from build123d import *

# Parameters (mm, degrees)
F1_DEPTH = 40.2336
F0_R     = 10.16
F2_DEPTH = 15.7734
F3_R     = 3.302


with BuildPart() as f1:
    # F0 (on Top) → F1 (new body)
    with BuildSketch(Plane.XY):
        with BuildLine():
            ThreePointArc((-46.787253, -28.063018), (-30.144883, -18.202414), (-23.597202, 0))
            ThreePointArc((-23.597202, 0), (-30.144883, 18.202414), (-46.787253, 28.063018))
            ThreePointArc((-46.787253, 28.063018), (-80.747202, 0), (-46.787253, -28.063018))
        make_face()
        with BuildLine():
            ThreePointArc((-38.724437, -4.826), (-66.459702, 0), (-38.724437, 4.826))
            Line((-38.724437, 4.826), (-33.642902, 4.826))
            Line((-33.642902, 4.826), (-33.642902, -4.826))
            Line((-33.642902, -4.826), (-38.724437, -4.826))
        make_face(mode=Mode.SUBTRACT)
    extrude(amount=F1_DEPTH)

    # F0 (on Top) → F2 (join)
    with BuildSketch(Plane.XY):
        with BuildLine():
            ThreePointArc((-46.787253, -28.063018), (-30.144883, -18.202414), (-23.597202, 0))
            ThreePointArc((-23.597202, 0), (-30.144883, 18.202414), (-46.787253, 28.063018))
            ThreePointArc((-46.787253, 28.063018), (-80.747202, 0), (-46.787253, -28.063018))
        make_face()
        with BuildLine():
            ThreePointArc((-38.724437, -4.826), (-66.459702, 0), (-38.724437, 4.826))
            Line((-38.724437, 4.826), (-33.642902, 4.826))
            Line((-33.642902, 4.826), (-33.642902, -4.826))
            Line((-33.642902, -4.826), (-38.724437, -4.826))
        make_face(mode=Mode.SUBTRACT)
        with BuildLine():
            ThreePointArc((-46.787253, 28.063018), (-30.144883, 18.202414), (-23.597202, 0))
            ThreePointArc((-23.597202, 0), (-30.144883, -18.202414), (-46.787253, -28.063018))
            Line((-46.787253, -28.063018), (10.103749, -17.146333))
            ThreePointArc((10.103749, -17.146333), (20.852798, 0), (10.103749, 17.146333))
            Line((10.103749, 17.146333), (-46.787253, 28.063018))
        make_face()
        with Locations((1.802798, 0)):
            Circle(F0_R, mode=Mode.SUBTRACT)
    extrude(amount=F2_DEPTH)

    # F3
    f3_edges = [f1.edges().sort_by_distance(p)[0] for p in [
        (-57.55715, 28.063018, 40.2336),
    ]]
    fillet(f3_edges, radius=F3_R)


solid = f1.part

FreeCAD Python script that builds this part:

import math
import FreeCAD as App
import Part
import Sketcher
from FreeCAD import Vector
Q = App.Units.Quantity


def edges_at(feature, points):
    """Names of the edges that pass closest to the given points."""
    edges = feature.Shape.Edges
    near = lambda p: min(range(len(edges)), key=lambda i: edges[i].distToShape(Part.Vertex(*p))[0])
    return sorted({f"Edge{near(p) + 1}" for p in points})

doc = App.newDocument("Part")
body = doc.addObject("PartDesign::Body", "Body")

# Sketch on XY plane
sketch1 = body.newObject("Sketcher::SketchObject", "Sketch")
sketch1.AttachmentSupport = (doc.getObject("XY_Plane"), [""])
sketch1.MapMode = "FlatFace"
sketch1.addGeometry([
    Part.ArcOfCircle(Part.Circle(Vector(-52.172201, -0.000001, 0), Vector(0, 0, 1), 28.574999), math.radians(-79.137679), math.radians(0.000002)),  # 0
    Part.ArcOfCircle(Part.Circle(Vector(-52.172201, 0.000001, 0), Vector(0, 0, 1), 28.574999), math.radians(-0.000002), math.radians(79.137679)),  # 1
    Part.ArcOfCircle(Part.Circle(Vector(-52.172202, 0, 0), Vector(0, 0, 1), 28.575), math.radians(79.137679), math.radians(280.862321)),  # 2
    Part.LineSegment(Vector(-33.642902, -4.826, 0), Vector(-38.724437, -4.826, 0)),  # 3
    Part.ArcOfCircle(Part.Circle(Vector(-52.172202, 0, 0), Vector(0, 0, 1), 14.2875), math.radians(19.741542), math.radians(340.258458)),  # 4
    Part.LineSegment(Vector(-38.724437, 4.826, 0), Vector(-33.642902, 4.826, 0)),  # 5
    Part.LineSegment(Vector(-33.642902, 4.826, 0), Vector(-33.642902, -4.826, 0)),  # 6
], False)
sketch1.addConstraint([
    Sketcher.Constraint("Tangent", 0, 2, 1, 1),
    Sketcher.Constraint("Tangent", 1, 2, 2, 1),
    Sketcher.Constraint("Tangent", 2, 2, 0, 1),
    Sketcher.Constraint("Coincident", 3, 2, 4, 2),
    Sketcher.Constraint("Coincident", 4, 1, 5, 1),
    Sketcher.Constraint("Coincident", 5, 2, 6, 1),
    Sketcher.Constraint("Coincident", 6, 2, 3, 1),
    Sketcher.Constraint("Horizontal", 3),
    Sketcher.Constraint("Horizontal", 5),
    Sketcher.Constraint("Vertical", 6),
    Sketcher.Constraint("Coincident", 4, 3, 0, 3),
    Sketcher.Constraint("Symmetric", 1, 2, 2, 2, -1),
    Sketcher.Constraint("PointOnObject", 0, 2, -1),
    Sketcher.Constraint("Vertical", 3, 2, 4, 1),
    Sketcher.Constraint("Radius", 0, Q("1.125 in")),
    Sketcher.Constraint("Radius", 4, Q("0.5625 in")),
    Sketcher.Constraint("DistanceY", 6, 2, 6, 1, Q("0.38 in")),
    Sketcher.Constraint("DistanceX", 5, 2, 0, 2, Q("0.3955 in")),
    Sketcher.Constraint("DistanceX", 0, 3, -1, 1, 52.172201),
    Sketcher.Constraint("DistanceY", 2, 2, -1, 1, 28.063018),
])
pad1 = body.newObject("PartDesign::Pad", "Pad")
pad1.Profile = sketch1
pad1.Length = Q("1.584 in")

# Sketch on XY plane
sketch2 = body.newObject("Sketcher::SketchObject", "Sketch001")
sketch2.AttachmentSupport = (doc.getObject("XY_Plane"), [""])
sketch2.MapMode = "FlatFace"
sketch2.addGeometry([
    Part.ArcOfCircle(Part.Circle(Vector(-52.172202, 0, 0), Vector(0, 0, 1), 28.575), math.radians(79.137679), math.radians(280.862321)),  # 0
    Part.LineSegment(Vector(-46.787253, -28.063018, 0), Vector(10.103749, -17.146333, 0)),  # 1
    Part.ArcOfCircle(Part.Circle(Vector(1.802797, 0, 0), Vector(0, 0, 1), 19.050001), math.radians(-64.16726), math.radians(64.16726)),  # 2
    Part.LineSegment(Vector(10.103749, 17.146333, 0), Vector(-46.787253, 28.063018, 0)),  # 3
    Part.LineSegment(Vector(-33.642902, -4.826, 0), Vector(-38.724437, -4.826, 0)),  # 4
    Part.ArcOfCircle(Part.Circle(Vector(-52.172202, 0, 0), Vector(0, 0, 1), 14.2875), math.radians(19.741542), math.radians(340.258458)),  # 5
    Part.LineSegment(Vector(-38.724437, 4.826, 0), Vector(-33.642902, 4.826, 0)),  # 6
    Part.LineSegment(Vector(-33.642902, 4.826, 0), Vector(-33.642902, -4.826, 0)),  # 7
    Part.Circle(Vector(1.802798, 0, 0), Vector(0, 0, 1), 10.16),  # 8
], False)
sketch2.addConstraint([
    Sketcher.Constraint("Tangent", 0, 2, 1, 1),
    Sketcher.Constraint("Coincident", 1, 2, 2, 1),
    Sketcher.Constraint("Coincident", 2, 2, 3, 1),
    Sketcher.Constraint("Tangent", 3, 2, 0, 1),
    Sketcher.Constraint("Coincident", 4, 2, 5, 2),
    Sketcher.Constraint("Coincident", 5, 1, 6, 1),
    Sketcher.Constraint("Coincident", 6, 2, 7, 1),
    Sketcher.Constraint("Coincident", 7, 2, 4, 1),
    Sketcher.Constraint("Horizontal", 4),
    Sketcher.Constraint("Horizontal", 6),
    Sketcher.Constraint("Vertical", 7),
    Sketcher.Constraint("Coincident", 5, 3, 0, 3),
    Sketcher.Constraint("Coincident", 8, 3, 2, 3),
    Sketcher.Constraint("Symmetric", 1, 2, 2, 2, -1),
    Sketcher.Constraint("Symmetric", 4, 2, 5, 1, -1),
    Sketcher.Constraint("Diameter", 8, Q("0.8 in")),
    Sketcher.Constraint("Radius", 2, Q("0.75 in")),
    Sketcher.Constraint("Radius", 0, Q("1.125 in")),
    Sketcher.Constraint("Radius", 5, Q("0.5625 in")),
    Sketcher.Constraint("DistanceY", 7, 2, 7, 1, Q("0.38 in")),
    Sketcher.Constraint("DistanceX", 0, 3, 2, 3, Q("2.1249999 in")),
    Sketcher.Constraint("DistanceX", 0, 3, 6, 2, Q("0.7295 in")),
    Sketcher.Constraint("DistanceX", 0, 3, -1, 1, 52.172202),
    Sketcher.Constraint("DistanceX", 0, 2, 1, 2, 56.891002),
])
pad2 = body.newObject("PartDesign::Pad", "Pad001")
pad2.Profile = sketch2
pad2.Length = Q("0.621 in")
doc.recompute()

fillet = body.newObject("PartDesign::Fillet", "Fillet")
fillet.Base = (pad2, edges_at(pad2, [(-80.747, 0, 40.234)]))
fillet.Radius = Q("0.13 in")

doc.recompute()
